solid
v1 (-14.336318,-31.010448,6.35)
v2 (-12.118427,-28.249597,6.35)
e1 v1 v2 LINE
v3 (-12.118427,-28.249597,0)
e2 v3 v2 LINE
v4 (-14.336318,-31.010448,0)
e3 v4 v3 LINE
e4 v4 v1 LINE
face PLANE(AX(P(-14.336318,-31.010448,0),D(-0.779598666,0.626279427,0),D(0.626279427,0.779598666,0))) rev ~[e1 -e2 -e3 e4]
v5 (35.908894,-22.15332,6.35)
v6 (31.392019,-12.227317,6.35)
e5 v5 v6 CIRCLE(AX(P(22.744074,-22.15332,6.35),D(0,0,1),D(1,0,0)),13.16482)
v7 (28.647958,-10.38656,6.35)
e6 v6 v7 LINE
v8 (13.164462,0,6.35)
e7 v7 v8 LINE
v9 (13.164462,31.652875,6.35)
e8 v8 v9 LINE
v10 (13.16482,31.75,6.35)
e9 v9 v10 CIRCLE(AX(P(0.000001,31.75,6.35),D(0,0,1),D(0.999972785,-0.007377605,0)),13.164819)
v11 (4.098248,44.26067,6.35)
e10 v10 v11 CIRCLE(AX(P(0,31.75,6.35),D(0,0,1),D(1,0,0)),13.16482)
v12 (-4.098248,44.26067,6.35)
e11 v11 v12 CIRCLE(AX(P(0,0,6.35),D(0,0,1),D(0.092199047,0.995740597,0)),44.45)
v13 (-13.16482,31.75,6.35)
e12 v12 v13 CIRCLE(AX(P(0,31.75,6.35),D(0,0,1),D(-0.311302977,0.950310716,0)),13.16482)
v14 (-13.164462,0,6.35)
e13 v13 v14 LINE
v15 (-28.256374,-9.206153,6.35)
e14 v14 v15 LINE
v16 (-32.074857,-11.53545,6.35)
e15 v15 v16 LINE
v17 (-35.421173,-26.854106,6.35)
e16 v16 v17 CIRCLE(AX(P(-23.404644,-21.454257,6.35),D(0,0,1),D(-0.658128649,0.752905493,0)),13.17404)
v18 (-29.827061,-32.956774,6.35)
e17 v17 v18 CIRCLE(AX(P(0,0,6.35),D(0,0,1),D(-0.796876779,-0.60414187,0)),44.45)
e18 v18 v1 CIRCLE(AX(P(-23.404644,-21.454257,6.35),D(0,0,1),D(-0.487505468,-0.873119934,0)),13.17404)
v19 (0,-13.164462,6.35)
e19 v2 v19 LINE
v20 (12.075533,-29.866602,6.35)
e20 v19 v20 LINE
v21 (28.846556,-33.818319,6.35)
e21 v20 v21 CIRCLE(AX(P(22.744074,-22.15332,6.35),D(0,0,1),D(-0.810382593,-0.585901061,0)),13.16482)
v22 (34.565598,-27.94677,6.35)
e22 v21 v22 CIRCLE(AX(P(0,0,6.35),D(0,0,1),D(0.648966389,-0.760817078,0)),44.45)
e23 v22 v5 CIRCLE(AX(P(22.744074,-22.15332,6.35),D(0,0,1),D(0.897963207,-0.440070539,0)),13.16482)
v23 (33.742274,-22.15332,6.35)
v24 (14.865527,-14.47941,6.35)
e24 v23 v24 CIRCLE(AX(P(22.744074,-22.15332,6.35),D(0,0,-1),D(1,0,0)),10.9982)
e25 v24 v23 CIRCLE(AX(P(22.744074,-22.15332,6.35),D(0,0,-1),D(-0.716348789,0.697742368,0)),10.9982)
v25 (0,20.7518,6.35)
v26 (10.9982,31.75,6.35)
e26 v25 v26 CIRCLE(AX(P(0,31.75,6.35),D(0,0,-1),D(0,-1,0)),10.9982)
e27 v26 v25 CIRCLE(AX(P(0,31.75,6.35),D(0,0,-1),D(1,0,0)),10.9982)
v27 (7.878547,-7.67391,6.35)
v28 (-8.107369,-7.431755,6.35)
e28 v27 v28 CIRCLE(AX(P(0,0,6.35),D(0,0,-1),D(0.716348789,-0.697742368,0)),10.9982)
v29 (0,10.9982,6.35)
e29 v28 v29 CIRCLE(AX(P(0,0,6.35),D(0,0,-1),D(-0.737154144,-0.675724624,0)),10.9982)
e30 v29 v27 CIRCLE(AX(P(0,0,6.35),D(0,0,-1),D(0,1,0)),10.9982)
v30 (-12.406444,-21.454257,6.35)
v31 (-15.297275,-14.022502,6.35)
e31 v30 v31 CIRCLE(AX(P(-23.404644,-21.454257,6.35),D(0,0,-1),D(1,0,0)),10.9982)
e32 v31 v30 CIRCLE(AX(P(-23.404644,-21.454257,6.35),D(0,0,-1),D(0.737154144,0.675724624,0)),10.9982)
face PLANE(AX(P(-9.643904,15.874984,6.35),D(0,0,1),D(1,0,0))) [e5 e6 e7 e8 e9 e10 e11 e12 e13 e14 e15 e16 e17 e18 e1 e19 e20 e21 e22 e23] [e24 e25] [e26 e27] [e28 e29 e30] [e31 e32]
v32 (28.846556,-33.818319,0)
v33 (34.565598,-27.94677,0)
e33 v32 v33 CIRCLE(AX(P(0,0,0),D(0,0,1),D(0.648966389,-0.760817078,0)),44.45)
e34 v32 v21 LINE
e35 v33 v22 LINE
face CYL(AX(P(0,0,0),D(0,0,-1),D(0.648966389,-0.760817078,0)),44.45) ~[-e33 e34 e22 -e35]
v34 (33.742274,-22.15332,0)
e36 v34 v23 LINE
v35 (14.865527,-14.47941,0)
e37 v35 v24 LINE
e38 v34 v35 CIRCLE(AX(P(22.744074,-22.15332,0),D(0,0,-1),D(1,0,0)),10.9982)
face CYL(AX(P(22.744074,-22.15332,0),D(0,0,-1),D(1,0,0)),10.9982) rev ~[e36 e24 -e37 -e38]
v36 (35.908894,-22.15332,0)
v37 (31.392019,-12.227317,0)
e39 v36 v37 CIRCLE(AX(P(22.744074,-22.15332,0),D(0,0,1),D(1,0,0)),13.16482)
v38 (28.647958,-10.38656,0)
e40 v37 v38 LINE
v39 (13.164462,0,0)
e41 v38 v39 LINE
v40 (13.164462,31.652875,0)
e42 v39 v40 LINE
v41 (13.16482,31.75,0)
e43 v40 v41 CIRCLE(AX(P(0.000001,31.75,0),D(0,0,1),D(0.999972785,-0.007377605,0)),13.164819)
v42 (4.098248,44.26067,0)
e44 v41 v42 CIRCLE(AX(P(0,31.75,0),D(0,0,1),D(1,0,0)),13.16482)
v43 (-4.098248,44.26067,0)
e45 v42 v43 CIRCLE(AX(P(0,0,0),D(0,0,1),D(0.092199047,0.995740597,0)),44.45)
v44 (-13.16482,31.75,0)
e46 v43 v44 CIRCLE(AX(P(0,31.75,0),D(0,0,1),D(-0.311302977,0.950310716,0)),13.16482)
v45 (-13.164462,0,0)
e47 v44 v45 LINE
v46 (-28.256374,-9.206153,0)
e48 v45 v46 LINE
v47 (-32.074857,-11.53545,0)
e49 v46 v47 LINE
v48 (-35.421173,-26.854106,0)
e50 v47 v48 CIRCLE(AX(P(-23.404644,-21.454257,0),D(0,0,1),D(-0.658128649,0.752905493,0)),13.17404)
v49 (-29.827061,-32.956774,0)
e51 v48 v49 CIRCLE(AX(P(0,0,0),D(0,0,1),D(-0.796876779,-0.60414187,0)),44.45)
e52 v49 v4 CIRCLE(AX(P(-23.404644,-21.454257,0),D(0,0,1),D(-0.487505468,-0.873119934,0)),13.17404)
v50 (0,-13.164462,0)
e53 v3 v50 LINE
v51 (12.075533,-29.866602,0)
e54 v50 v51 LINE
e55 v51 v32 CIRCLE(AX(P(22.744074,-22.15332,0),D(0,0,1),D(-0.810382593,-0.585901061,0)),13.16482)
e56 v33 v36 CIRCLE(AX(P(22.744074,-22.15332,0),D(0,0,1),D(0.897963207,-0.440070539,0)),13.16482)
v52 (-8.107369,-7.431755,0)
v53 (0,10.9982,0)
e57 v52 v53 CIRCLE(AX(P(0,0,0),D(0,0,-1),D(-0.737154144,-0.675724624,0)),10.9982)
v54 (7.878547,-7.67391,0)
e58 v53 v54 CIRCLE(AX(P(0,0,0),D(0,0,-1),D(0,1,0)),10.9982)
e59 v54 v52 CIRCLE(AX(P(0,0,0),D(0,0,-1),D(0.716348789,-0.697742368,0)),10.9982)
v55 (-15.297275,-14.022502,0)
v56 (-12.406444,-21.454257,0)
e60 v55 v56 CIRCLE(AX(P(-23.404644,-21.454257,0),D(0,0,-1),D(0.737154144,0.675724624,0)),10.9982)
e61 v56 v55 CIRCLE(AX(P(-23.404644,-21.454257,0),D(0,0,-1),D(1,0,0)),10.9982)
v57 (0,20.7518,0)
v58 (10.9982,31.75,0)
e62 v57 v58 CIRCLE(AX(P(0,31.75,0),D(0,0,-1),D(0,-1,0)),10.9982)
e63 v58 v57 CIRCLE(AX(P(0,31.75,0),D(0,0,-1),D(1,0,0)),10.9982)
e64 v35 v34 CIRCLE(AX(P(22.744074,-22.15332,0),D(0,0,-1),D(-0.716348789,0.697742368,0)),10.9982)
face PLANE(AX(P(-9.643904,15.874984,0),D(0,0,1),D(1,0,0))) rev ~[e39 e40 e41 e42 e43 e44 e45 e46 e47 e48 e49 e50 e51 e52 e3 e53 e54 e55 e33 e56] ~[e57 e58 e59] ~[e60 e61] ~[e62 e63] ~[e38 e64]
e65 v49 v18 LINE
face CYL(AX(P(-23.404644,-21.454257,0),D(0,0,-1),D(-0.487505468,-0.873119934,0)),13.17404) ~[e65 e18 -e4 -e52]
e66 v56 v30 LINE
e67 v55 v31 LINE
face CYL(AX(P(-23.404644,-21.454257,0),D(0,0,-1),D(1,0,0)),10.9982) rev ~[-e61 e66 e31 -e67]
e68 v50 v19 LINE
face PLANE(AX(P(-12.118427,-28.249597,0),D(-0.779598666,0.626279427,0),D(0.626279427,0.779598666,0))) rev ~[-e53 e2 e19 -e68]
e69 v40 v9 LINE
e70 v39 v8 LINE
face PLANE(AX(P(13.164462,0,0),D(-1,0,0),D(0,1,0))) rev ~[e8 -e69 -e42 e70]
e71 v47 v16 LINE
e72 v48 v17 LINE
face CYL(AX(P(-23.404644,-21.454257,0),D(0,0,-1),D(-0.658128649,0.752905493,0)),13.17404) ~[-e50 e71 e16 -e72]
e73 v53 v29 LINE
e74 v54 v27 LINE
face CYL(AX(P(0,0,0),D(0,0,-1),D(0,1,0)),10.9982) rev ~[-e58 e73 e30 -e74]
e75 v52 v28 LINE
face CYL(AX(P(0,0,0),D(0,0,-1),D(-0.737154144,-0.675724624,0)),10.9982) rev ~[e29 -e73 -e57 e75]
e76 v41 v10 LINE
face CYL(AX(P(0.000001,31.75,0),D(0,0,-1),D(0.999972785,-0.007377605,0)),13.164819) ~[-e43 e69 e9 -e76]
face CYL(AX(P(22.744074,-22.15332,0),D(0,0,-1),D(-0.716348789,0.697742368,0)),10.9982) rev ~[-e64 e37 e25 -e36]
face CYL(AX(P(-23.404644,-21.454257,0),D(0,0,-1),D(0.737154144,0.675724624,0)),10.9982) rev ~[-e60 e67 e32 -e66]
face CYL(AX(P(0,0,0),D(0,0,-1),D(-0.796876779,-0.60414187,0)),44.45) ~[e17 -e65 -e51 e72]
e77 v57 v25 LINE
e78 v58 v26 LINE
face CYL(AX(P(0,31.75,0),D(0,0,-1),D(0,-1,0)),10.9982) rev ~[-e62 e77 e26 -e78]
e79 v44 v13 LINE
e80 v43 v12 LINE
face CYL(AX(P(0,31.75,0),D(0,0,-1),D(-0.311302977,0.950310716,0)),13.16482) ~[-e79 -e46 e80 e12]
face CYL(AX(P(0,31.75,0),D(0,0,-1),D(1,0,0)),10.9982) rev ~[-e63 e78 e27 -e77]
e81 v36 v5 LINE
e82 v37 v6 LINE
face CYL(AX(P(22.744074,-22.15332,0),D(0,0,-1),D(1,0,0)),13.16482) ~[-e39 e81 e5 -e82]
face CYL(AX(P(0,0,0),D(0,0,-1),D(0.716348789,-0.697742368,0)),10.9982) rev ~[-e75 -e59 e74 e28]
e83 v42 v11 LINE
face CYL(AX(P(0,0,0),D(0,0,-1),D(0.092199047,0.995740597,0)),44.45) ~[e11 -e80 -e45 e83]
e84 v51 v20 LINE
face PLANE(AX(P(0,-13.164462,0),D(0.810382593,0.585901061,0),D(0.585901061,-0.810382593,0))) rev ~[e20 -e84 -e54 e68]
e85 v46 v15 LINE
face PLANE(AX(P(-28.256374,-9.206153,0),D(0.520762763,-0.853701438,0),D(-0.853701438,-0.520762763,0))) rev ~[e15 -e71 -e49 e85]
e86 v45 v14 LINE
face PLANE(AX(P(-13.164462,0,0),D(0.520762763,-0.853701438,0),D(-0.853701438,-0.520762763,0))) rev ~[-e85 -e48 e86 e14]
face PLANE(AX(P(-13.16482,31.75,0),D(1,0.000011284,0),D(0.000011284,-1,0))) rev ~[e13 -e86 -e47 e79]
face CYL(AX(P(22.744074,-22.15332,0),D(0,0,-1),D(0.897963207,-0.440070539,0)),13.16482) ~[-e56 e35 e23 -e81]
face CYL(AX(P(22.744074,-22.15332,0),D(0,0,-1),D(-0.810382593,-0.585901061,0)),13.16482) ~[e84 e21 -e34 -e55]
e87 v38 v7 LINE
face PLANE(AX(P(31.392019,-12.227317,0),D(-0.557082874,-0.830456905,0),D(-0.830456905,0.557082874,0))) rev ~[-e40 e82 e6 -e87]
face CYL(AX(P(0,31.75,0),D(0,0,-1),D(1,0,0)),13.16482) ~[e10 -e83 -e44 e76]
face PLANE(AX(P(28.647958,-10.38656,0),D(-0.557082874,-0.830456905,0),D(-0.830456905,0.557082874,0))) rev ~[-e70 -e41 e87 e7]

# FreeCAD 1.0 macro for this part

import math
import FreeCAD as App
import Part
import Sketcher

V = App.Vector
Q = App.Units.Quantity

doc = App.newDocument("Part")
body = doc.addObject("PartDesign::Body", "Body")

sketch1 = body.newObject("Sketcher::SketchObject", "Sketch")
sketch1.AttachmentSupport = (doc.getObject("XY_Plane"), [""])
sketch1.MapMode = "FlatFace"
sketch1.addGeometry(Part.LineSegment(V(-12.12, -28.25, 0), V(0, -13.16, 0)), False)
sketch1.addGeometry(Part.LineSegment(V(0, -13.16, 0), V(12.08, -29.87, 0)), False)
sketch1.addGeometry(Part.ArcOfCircle(Part.Circle(V(22.74, -22.15, 0), V(0, 0, 1), 13.16), math.radians(-144), math.radians(-62)), False)
sketch1.addGeometry(Part.ArcOfCircle(Part.Circle(V(0, 0, 0), V(0, 0, 1), 44.45), math.radians(-49.54), math.radians(-38.96)), False)
sketch1.addGeometry(Part.ArcOfCircle(Part.Circle(V(22.74, -22.15, 0), V(0, 0, 1), 13.16), math.radians(-26), math.radians(0)), False)
sketch1.addGeometry(Part.ArcOfCircle(Part.Circle(V(22.74, -22.15, 0), V(0, 0, 1), 13.16), math.radians(0), math.radians(49)), False)
sketch1.addGeometry(Part.LineSegment(V(31.39, -12.23, 0), V(28.65, -10.39, 0)), False)
sketch1.addGeometry(Part.LineSegment(V(28.65, -10.39, 0), V(13.16, 0, 0)), False)
sketch1.addGeometry(Part.LineSegment(V(13.16, 0, 0), V(13.16, 31.65, 0)), False)
sketch1.addGeometry(Part.ArcOfCircle(Part.Circle(V(0, 31.75, 0), V(0, 0, 1), 13.16), math.radians(-0.42), math.radians(0)), False)
sketch1.addGeometry(Part.ArcOfCircle(Part.Circle(V(0, 31.75, 0), V(0, 0, 1), 13.16), math.radians(0), math.radians(72)), False)
sketch1.addGeometry(Part.ArcOfCircle(Part.Circle(V(0, 0, 0), V(0, 0, 1), 44.45), math.radians(84.71), math.radians(95.29)), False)
sketch1.addGeometry(Part.ArcOfCircle(Part.Circle(V(0, 31.75, 0), V(0, 0, 1), 13.16), math.radians(108), math.radians(180)), False)
sketch1.addGeometry(Part.LineSegment(V(-13.16, 31.75, 0), V(-13.16, 0, 0)), False)
sketch1.addGeometry(Part.LineSegment(V(-13.16, 0, 0), V(-28.26, -9.21, 0)), False)
sketch1.addGeometry(Part.LineSegment(V(-28.26, -9.21, 0), V(-32.07, -11.54, 0)), False)
sketch1.addGeometry(Part.ArcOfCircle(Part.Circle(V(-23.4, -21.45, 0), V(0, 0, 1), 13.17), math.radians(131), math.radians(204)), False)
sketch1.addGeometry(Part.ArcOfCircle(Part.Circle(V(0, 0, 0), V(0, 0, 1), 44.45), math.radians(-142.83), math.radians(-132.15)), False)
sketch1.addGeometry(Part.ArcOfCircle(Part.Circle(V(-23.4, -21.45, 0), V(0, 0, 1), 13.17), math.radians(-119), math.radians(-47)), False)
sketch1.addGeometry(Part.LineSegment(V(-14.34, -31.01, 0), V(-12.12, -28.25, 0)), False)
sketch1.addGeometry(Part.ArcOfCircle(Part.Circle(V(-23.4, -21.45, 0), V(0, 0, 1), 11), math.radians(43), math.radians(360)), False)
sketch1.addGeometry(Part.ArcOfCircle(Part.Circle(V(-23.4, -21.45, 0), V(0, 0, 1), 11), math.radians(0), math.radians(43)), False)
sketch1.addGeometry(Part.ArcOfCircle(Part.Circle(V(22.74, -22.15, 0), V(0, 0, 1), 11), math.radians(136), math.radians(360)), False)
sketch1.addGeometry(Part.ArcOfCircle(Part.Circle(V(22.74, -22.15, 0), V(0, 0, 1), 11), math.radians(0), math.radians(136)), False)
sketch1.addGeometry(Part.ArcOfCircle(Part.Circle(V(0, 0, 0), V(0, 0, 1), 11), math.radians(-44), math.radians(90)), False)
sketch1.addGeometry(Part.ArcOfCircle(Part.Circle(V(0, 0, 0), V(0, 0, 1), 11), math.radians(-137), math.radians(-44)), False)
sketch1.addGeometry(Part.ArcOfCircle(Part.Circle(V(0, 0, 0), V(0, 0, 1), 11), math.radians(90), math.radians(223)), False)
sketch1.addGeometry(Part.ArcOfCircle(Part.Circle(V(0, 31.75, 0), V(0, 0, 1), 11), math.radians(0), math.radians(270)), False)
sketch1.addGeometry(Part.ArcOfCircle(Part.Circle(V(0, 31.75, 0), V(0, 0, 1), 11), math.radians(-90), math.radians(0)), False)
sketch1.addConstraint(Sketcher.Constraint("Coincident", 0, 2, 1, 1))
sketch1.addConstraint(Sketcher.Constraint("Tangent", 1, 2, 2, 1))
sketch1.addConstraint(Sketcher.Constraint("Coincident", 2, 2, 3, 1))
sketch1.addConstraint(Sketcher.Constraint("Coincident", 3, 2, 4, 1))
sketch1.addConstraint(Sketcher.Constraint("Tangent", 4, 2, 5, 1))
sketch1.addConstraint(Sketcher.Constraint("Coincident", 5, 2, 6, 1))
sketch1.addConstraint(Sketcher.Constraint("Coincident", 6, 2, 7, 1))
sketch1.addConstraint(Sketcher.Constraint("Coincident", 7, 2, 8, 1))
sketch1.addConstraint(Sketcher.Constraint("Coincident", 8, 2, 9, 1))
sketch1.addConstraint(Sketcher.Constraint("Tangent", 9, 2, 10, 1))
sketch1.addConstraint(Sketcher.Constraint("Coincident", 10, 2, 11, 1))
sketch1.addConstraint(Sketcher.Constraint("Coincident", 11, 2, 12, 1))
sketch1.addConstraint(Sketcher.Constraint("Coincident", 12, 2, 13, 1))
sketch1.addConstraint(Sketcher.Constraint("Coincident", 13, 2, 14, 1))
sketch1.addConstraint(Sketcher.Constraint("Coincident", 14, 2, 15, 1))
sketch1.addConstraint(Sketcher.Constraint("Coincident", 15, 2, 16, 1))
sketch1.addConstraint(Sketcher.Constraint("Coincident", 16, 2, 17, 1))
sketch1.addConstraint(Sketcher.Constraint("Coincident", 17, 2, 18, 1))
sketch1.addConstraint(Sketcher.Constraint("Coincident", 18, 2, 19, 1))
sketch1.addConstraint(Sketcher.Constraint("Coincident", 19, 2, 0, 1))
sketch1.addConstraint(Sketcher.Constraint("Tangent", 20, 1, 21, 2))
sketch1.addConstraint(Sketcher.Constraint("Coincident", 21, 1, 20, 2))
sketch1.addConstraint(Sketcher.Constraint("Tangent", 22, 1, 23, 2))
sketch1.addConstraint(Sketcher.Constraint("Coincident", 23, 1, 22, 2))
sketch1.addConstraint(Sketcher.Constraint("Tangent", 24, 1, 25, 2))
sketch1.addConstraint(Sketcher.Constraint("Tangent", 25, 1, 26, 2))
sketch1.addConstraint(Sketcher.Constraint("Tangent", 26, 1, 24, 2))
sketch1.addConstraint(Sketcher.Constraint("Tangent", 27, 1, 28, 2))
sketch1.addConstraint(Sketcher.Constraint("Coincident", 28, 1, 27, 2))
sketch1.addConstraint(Sketcher.Constraint("Vertical", 8))
sketch1.addConstraint(Sketcher.Constraint("Coincident", 3, 3, -1, 1))
sketch1.addConstraint(Sketcher.Constraint("Coincident", 11, 3, -1, 1))
sketch1.addConstraint(Sketcher.Constraint("Coincident", 17, 3, -1, 1))
sketch1.addConstraint(Sketcher.Constraint("Coincident", 24, 3, -1, 1))
sketch1.addConstraint(Sketcher.Constraint("Coincident", 4, 3, 2, 3))
sketch1.addConstraint(Sketcher.Constraint("Coincident", 12, 3, 9, 3))
sketch1.addConstraint(Sketcher.Constraint("Coincident", 18, 3, 16, 3))
sketch1.addConstraint(Sketcher.Constraint("Coincident", 20, 3, 16, 3))
sketch1.addConstraint(Sketcher.Constraint("Coincident", 22, 3, 2, 3))
sketch1.addConstraint(Sketcher.Constraint("Coincident", 27, 3, 9, 3))
sketch1.addConstraint(Sketcher.Constraint("Equal", 2, 4))
sketch1.addConstraint(Sketcher.Constraint("Equal", 4, 5))
sketch1.addConstraint(Sketcher.Constraint("Equal", 5, 9))
sketch1.addConstraint(Sketcher.Constraint("Equal", 9, 10))
sketch1.addConstraint(Sketcher.Constraint("Equal", 3, 11))
sketch1.addConstraint(Sketcher.Constraint("Equal", 10, 12))
sketch1.addConstraint(Sketcher.Constraint("Equal", 11, 17))
sketch1.addConstraint(Sketcher.Constraint("Equal", 16, 18))
sketch1.addConstraint(Sketcher.Constraint("Equal", 21, 22))
sketch1.addConstraint(Sketcher.Constraint("Equal", 23, 24))
sketch1.addConstraint(Sketcher.Constraint("Equal", 26, 27))
sketch1.addConstraint(Sketcher.Constraint("Symmetric", 7, 2, 13, 2, -1, 1))
sketch1.addConstraint(Sketcher.Constraint("Symmetric", 9, 2, 12, 2, -2))
sketch1.addConstraint(Sketcher.Constraint("PointOnObject", 0, 2, -2))
sketch1.addConstraint(Sketcher.Constraint("PointOnObject", 7, 2, -1))
sketch1.addConstraint(Sketcher.Constraint("PointOnObject", 26, 1, -2))
sketch1.addConstraint(Sketcher.Constraint("PointOnObject", 28, 1, -2))
sketch1.addConstraint(Sketcher.Constraint("Parallel", 6, 7))
sketch1.addConstraint(Sketcher.Constraint("Parallel", 14, 15))
sketch1.addConstraint(Sketcher.Constraint("Parallel", 0, 19))
sketch1.addConstraint(Sketcher.Constraint("Horizontal", 23, 3, 4, 2))
sketch1.addConstraint(Sketcher.Constraint("Horizontal", 28, 3, 9, 2))
sketch1.addConstraint(Sketcher.Constraint("Horizontal", 20, 3, 21, 1))
sketch1.addConstraint(Sketcher.Constraint("Horizontal", 4, 2, 23, 1))
sketch1.addConstraint(Sketcher.Constraint("Horizontal", 12, 2, 27, 1))
sketch1.addConstraint(Sketcher.Constraint("Radius", 3, Q("1.75 in")))
sketch1.addConstraint(Sketcher.Constraint("Radius", 20, Q("0.433 in")))
sketch1.addConstraint(Sketcher.Constraint("Radius", 2, Q("0.5183 in")))
sketch1.addConstraint(Sketcher.Constraint("Distance", 13, Q("1.25 in")))
sketch1.addConstraint(Sketcher.Constraint("Radius", 16, 13.17404))
sketch1.addConstraint(Sketcher.Constraint("DistanceX", -1, 1, 3, 2, 34.565598))
sketch1.addConstraint(Sketcher.Constraint("DistanceY", 2, 2, 5, 3, 11.664999))
sketch1.addConstraint(Sketcher.Constraint("DistanceX", 14, 2, 20, 1, 12.959098))
sketch1.addConstraint(Sketcher.Constraint("DistanceY", 22, 1, 24, 1, 6.8055))
sketch1.addConstraint(Sketcher.Constraint("Distance", 1, 20.610192))
sketch1.addConstraint(Sketcher.Constraint("Distance", 7, 18.644552))
sketch1.addConstraint(Sketcher.Constraint("Distance", 14, 17.678208))
sketch1.addConstraint(Sketcher.Constraint("DistanceY", 8, 1, 8, 2, 31.652875))
sketch1.addConstraint(Sketcher.Constraint("DistanceX", -1, 1, 5, 2, 31.392019))
sketch1.addConstraint(Sketcher.Constraint("DistanceY", 15, 2, -1, 1, 11.53545))
sketch1.addConstraint(Sketcher.Constraint("DistanceX", 17, 2, -1, 1, 29.827061))
sketch1.addConstraint(Sketcher.Constraint("DistanceY", 18, 2, -1, 1, 31.010448))
sketch1.addConstraint(Sketcher.Constraint("DistanceY", 22, 1, -1, 1, 14.47941))
sketch1.addConstraint(Sketcher.Constraint("DistanceX", 25, 1, -1, 1, 8.107369))
sketch1.addConstraint(Sketcher.Constraint("DistanceX", 16, 3, 2, 3, 46.148718))
sketch1.addConstraint(Sketcher.Constraint("DistanceX", 18, 2, 19, 2, 2.217891))
pad1 = body.newObject("PartDesign::Pad", "Pad")
pad1.Profile = sketch1
pad1.Length = Q("0.25 in")

doc.recompute()
